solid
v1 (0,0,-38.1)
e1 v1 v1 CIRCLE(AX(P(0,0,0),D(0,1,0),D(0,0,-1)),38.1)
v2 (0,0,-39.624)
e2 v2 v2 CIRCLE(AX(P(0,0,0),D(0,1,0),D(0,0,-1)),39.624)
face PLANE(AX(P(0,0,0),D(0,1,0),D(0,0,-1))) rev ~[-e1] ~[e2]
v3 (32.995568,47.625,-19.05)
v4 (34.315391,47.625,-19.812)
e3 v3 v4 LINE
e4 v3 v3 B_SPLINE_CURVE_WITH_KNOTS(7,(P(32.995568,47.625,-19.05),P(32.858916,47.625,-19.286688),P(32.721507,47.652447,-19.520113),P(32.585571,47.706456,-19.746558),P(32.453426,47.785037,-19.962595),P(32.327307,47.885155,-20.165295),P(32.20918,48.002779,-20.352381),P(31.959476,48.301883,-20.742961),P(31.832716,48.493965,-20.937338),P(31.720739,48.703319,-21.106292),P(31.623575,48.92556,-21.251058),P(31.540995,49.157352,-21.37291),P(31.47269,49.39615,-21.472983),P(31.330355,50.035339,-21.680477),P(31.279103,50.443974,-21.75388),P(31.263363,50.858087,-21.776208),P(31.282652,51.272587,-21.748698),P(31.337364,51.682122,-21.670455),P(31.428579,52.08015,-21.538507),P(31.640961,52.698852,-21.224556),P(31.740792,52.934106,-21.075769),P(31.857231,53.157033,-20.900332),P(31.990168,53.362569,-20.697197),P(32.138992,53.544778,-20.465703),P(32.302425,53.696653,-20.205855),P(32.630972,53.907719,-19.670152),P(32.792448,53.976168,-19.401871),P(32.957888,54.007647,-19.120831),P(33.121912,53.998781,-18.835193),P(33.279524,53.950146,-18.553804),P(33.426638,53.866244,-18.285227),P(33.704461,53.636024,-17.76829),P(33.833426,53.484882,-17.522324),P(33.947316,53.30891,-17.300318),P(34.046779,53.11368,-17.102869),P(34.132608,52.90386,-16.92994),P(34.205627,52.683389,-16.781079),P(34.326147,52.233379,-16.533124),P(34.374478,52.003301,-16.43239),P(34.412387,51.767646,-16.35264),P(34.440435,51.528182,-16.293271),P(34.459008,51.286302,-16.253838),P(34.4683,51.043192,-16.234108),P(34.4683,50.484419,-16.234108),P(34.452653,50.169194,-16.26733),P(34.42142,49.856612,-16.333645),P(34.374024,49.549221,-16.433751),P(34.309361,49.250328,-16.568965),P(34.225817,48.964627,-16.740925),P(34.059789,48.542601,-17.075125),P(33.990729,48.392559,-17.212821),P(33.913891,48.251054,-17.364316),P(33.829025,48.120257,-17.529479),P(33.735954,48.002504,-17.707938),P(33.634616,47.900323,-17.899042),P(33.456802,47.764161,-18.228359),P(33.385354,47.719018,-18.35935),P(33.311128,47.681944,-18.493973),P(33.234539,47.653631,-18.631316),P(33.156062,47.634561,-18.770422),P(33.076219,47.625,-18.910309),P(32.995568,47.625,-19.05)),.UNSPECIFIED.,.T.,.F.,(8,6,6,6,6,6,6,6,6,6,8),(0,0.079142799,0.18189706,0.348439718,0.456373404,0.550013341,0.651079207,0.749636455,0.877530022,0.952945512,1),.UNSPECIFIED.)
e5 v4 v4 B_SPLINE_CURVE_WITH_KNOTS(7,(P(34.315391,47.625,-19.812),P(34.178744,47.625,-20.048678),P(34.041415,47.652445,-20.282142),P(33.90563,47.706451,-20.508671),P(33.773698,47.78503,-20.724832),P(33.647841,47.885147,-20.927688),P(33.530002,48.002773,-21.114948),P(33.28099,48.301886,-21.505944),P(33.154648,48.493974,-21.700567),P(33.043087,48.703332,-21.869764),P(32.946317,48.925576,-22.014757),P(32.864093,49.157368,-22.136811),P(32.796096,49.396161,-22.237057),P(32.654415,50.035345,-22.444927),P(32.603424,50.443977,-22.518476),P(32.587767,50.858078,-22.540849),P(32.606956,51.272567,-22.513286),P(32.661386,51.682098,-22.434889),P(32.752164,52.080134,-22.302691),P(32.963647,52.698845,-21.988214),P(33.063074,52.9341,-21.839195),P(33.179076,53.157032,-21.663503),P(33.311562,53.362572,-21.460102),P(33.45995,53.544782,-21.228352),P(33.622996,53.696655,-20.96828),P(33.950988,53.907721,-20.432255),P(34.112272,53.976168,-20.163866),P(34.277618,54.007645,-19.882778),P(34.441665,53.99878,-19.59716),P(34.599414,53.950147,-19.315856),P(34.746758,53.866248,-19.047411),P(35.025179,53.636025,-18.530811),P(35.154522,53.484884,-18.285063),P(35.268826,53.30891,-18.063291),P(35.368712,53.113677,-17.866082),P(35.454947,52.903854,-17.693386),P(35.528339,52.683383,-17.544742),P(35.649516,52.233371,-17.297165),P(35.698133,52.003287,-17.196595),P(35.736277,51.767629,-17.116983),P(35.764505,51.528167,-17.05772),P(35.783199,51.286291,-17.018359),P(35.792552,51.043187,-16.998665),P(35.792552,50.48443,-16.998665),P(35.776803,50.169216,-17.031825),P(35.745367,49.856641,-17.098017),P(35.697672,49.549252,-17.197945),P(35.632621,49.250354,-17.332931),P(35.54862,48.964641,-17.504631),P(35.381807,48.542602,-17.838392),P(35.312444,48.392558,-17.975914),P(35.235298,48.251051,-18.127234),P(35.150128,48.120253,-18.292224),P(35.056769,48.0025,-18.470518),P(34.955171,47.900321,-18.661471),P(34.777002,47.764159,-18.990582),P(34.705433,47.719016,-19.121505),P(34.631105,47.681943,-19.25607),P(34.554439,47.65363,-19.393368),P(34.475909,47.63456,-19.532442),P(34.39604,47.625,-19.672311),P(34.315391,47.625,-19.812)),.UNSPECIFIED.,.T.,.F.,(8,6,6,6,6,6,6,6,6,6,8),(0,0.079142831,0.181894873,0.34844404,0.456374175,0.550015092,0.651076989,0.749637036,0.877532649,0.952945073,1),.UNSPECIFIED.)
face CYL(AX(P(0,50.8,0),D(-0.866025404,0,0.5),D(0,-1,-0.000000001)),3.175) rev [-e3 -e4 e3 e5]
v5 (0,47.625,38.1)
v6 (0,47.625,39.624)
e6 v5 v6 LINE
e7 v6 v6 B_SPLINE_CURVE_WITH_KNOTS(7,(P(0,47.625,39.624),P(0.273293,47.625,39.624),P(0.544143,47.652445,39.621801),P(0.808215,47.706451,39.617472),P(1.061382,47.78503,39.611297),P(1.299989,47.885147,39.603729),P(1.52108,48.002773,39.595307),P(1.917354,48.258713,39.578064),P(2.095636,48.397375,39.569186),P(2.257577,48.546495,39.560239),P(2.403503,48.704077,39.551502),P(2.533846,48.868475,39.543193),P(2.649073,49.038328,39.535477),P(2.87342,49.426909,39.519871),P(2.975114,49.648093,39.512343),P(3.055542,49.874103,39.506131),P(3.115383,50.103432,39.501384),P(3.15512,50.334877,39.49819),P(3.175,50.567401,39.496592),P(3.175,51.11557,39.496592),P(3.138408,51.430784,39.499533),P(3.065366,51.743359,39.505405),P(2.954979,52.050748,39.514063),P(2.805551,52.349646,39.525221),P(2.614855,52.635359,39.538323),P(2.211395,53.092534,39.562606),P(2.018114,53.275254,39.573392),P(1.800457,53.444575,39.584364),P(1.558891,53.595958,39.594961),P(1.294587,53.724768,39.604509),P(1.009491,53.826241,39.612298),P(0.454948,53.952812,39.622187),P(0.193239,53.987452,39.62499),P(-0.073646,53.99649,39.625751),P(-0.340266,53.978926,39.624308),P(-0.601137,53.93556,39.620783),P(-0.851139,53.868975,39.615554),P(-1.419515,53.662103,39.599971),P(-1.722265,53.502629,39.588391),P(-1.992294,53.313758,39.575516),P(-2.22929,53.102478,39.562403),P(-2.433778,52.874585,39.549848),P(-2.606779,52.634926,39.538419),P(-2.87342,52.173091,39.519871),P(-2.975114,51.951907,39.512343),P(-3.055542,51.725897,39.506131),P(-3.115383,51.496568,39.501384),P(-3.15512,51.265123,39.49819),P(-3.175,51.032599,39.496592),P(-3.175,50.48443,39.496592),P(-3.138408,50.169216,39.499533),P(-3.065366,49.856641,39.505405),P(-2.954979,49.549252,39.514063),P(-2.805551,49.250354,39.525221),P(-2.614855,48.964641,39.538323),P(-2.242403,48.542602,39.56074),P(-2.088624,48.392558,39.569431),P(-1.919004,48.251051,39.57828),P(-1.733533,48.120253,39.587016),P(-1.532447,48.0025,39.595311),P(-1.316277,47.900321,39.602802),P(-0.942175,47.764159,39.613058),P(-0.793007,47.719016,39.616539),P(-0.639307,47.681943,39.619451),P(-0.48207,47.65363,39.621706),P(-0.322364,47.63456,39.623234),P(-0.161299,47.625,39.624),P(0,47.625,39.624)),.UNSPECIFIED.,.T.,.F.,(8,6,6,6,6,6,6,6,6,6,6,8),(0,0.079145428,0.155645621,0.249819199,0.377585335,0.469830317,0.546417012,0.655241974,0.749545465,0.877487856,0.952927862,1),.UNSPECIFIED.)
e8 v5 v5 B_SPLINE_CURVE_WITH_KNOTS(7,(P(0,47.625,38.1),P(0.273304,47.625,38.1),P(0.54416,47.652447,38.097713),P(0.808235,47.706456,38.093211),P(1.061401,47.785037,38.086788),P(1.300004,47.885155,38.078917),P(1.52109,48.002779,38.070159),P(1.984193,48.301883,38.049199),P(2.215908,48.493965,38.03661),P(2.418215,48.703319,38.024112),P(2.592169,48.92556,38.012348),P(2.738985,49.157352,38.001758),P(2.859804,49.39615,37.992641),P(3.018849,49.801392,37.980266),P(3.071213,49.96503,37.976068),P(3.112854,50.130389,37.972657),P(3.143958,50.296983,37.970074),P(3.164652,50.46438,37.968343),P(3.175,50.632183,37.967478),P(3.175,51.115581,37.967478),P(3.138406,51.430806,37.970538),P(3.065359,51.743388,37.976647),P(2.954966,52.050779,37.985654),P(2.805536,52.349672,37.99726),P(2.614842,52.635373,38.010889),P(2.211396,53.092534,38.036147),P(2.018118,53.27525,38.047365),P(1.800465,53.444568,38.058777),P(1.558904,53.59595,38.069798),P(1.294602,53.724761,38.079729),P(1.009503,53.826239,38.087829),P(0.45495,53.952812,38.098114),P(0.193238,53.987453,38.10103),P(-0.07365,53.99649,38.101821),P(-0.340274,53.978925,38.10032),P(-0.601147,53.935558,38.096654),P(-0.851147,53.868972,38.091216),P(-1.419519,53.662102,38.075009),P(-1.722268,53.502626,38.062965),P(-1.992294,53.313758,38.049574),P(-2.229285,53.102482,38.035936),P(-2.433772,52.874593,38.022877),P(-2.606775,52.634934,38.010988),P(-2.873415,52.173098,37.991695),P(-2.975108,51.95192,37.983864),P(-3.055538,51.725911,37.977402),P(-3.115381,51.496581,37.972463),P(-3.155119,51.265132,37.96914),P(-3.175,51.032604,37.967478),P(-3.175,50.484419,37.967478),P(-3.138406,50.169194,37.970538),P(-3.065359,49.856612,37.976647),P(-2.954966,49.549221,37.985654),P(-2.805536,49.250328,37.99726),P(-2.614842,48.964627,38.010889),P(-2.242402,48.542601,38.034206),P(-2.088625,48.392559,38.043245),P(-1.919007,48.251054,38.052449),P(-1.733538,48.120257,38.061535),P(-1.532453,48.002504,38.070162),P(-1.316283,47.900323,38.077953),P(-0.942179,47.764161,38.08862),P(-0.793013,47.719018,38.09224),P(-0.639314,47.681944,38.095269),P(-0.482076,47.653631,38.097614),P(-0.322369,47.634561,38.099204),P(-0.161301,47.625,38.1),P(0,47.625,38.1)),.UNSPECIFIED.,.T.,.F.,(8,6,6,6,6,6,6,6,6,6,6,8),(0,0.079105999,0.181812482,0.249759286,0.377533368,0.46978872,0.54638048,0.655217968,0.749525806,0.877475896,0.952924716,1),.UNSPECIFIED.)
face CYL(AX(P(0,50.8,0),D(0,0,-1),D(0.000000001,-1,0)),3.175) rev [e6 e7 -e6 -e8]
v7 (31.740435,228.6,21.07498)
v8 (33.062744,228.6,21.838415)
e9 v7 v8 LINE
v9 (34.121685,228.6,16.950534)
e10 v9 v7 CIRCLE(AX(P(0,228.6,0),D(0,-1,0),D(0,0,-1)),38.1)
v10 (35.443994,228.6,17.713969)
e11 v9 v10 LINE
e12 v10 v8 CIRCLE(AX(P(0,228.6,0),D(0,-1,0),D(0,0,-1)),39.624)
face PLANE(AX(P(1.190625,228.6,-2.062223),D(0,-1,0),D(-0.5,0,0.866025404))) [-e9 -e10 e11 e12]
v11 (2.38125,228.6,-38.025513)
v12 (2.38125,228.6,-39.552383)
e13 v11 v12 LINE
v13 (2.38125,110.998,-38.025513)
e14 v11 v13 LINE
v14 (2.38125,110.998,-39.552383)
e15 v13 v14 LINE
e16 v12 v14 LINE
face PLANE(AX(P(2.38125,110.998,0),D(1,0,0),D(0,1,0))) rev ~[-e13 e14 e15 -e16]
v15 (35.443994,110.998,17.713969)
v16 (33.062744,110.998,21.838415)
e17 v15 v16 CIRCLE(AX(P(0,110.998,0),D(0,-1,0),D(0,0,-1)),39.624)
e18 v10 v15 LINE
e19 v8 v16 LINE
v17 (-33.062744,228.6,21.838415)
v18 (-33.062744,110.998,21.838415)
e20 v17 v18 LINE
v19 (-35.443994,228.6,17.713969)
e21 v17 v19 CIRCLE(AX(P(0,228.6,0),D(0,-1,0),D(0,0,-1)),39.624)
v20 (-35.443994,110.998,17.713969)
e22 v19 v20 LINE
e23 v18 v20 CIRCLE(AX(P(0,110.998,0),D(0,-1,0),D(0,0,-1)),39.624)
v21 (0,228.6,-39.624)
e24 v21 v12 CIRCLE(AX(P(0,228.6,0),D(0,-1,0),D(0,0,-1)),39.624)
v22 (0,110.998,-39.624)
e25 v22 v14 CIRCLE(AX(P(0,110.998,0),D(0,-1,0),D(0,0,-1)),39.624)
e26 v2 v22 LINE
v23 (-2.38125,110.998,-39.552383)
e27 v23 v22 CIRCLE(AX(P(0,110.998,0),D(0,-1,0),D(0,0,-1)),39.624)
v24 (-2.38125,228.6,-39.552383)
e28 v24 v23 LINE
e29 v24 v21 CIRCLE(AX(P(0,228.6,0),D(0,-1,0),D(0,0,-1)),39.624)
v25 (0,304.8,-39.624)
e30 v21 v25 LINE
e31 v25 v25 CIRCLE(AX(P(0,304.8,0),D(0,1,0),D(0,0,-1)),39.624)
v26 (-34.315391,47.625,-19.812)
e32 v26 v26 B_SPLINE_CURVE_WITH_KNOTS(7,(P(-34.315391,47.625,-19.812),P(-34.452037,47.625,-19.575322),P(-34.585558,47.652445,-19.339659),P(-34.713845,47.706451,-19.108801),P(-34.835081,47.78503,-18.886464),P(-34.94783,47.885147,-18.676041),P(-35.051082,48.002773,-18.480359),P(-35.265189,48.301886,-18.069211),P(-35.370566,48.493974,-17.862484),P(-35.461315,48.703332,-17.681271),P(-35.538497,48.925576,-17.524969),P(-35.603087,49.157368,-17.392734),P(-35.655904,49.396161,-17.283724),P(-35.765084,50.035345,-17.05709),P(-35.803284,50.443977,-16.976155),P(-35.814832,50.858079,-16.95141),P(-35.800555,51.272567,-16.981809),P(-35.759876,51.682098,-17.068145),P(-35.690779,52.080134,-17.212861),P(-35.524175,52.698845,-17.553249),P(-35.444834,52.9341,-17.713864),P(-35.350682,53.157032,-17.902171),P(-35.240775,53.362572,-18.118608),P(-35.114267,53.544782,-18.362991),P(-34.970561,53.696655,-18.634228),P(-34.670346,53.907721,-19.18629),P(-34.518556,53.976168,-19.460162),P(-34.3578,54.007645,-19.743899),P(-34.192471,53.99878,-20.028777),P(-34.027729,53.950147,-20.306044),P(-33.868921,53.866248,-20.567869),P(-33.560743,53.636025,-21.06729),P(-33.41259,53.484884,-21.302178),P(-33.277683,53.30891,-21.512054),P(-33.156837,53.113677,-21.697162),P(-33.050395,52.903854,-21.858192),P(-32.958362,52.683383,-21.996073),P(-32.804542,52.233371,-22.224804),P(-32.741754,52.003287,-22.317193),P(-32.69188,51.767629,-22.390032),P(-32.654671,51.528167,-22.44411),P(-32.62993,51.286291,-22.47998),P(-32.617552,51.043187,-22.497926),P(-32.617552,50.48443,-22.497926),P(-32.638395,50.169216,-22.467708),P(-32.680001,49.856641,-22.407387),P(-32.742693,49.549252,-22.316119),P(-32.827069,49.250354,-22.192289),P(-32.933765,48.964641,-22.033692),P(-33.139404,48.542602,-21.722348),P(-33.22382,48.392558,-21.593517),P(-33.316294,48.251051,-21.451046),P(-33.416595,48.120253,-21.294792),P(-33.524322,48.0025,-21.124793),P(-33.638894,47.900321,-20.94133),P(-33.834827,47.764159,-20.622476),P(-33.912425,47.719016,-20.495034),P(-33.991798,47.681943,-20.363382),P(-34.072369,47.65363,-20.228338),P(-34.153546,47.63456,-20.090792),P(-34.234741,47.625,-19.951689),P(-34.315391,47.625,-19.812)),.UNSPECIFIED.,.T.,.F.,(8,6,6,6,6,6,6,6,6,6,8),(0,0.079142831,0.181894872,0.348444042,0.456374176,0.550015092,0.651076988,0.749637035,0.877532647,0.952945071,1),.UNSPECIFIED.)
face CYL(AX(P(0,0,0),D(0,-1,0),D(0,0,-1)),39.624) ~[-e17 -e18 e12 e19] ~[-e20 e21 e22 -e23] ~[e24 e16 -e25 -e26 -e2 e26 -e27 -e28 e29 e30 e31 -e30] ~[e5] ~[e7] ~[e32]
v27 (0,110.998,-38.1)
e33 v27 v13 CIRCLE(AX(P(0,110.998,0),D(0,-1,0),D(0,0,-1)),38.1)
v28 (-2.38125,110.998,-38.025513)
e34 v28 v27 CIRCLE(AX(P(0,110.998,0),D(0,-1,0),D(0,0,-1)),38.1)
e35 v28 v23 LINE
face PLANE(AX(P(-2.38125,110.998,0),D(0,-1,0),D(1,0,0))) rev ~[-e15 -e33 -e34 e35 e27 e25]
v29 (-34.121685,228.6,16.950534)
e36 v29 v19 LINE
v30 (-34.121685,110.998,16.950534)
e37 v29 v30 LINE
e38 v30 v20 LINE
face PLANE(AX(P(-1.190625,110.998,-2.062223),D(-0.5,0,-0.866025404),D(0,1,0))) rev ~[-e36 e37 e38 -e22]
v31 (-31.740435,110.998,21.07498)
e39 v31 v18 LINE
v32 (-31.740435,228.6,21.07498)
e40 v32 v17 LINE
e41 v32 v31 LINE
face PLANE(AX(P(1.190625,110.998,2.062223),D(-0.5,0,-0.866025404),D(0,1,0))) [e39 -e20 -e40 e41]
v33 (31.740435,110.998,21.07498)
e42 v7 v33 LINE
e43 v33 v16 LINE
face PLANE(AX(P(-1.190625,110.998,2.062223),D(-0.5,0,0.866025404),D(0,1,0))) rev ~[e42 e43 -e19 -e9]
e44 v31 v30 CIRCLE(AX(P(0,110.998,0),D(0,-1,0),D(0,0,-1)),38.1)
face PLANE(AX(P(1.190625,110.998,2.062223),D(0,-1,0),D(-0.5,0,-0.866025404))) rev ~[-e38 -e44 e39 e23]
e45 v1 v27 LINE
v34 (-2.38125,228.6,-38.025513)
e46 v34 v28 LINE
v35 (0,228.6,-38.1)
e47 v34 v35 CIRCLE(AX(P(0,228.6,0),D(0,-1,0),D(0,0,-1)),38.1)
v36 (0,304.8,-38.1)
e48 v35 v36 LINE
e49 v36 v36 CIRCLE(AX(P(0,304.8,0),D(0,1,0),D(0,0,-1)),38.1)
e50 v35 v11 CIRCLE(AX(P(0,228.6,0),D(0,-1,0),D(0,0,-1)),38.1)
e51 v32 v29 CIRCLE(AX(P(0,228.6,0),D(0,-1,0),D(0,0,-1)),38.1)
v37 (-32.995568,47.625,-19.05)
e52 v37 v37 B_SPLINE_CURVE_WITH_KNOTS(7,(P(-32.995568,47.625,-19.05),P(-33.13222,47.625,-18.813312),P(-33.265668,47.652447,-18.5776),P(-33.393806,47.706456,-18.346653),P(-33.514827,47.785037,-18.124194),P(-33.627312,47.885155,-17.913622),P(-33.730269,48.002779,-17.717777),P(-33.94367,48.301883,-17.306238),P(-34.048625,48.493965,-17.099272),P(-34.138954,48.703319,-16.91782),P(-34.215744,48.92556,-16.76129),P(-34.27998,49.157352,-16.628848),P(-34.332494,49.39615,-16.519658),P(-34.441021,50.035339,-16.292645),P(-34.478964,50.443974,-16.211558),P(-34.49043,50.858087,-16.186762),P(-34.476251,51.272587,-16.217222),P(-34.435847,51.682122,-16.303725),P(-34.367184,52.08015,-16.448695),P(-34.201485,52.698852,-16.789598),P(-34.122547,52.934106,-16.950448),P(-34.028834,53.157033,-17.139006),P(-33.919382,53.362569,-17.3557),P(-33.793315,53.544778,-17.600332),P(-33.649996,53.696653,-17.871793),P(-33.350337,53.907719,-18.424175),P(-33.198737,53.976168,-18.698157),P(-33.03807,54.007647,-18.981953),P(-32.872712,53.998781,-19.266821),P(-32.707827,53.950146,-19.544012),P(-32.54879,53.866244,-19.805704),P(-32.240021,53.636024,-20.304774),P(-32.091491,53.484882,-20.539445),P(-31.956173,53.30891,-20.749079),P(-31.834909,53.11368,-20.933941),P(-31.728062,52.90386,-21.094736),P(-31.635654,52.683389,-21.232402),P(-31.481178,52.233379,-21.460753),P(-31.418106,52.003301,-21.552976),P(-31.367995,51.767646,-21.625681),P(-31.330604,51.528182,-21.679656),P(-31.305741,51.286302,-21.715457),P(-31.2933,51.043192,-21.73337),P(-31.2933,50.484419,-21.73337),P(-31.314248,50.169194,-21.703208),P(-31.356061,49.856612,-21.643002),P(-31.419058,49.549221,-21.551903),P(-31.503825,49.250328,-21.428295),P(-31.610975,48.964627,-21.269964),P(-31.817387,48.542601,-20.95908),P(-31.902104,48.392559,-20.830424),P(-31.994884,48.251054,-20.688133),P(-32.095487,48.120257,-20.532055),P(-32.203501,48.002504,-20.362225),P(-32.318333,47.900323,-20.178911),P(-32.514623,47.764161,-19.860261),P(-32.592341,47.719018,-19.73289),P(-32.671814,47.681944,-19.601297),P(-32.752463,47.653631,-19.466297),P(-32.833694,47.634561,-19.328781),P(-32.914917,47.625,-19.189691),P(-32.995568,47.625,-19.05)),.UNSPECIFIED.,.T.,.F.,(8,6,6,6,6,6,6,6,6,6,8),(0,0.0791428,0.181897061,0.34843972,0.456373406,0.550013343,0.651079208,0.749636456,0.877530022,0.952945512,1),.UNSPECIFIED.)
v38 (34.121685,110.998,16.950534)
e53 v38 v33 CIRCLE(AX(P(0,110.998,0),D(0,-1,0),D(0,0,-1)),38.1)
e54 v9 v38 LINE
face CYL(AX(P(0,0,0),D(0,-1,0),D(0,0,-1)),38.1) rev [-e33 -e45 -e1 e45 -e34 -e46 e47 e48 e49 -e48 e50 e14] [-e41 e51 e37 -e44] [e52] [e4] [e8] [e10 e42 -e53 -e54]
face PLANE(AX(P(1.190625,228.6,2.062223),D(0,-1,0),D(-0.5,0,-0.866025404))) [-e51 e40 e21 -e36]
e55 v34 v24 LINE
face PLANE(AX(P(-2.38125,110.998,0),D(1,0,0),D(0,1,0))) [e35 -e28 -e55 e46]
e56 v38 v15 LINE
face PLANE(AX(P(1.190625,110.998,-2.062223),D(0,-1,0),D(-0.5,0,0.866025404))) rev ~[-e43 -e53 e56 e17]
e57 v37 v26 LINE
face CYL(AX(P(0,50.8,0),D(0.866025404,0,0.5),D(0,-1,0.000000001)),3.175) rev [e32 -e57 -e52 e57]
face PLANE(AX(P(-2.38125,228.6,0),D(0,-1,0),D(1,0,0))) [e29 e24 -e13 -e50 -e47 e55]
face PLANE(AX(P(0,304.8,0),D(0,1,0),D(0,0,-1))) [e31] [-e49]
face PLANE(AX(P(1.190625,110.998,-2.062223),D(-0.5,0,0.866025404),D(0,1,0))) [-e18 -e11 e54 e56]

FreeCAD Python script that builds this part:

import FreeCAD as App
import Part
import Sketcher
Q = App.Units.Quantity


def add_polygon(sketch, points):
    """Adds a closed chain of lines whose ends are joined by coincident constraints."""
    first, n = sketch.GeometryCount, len(points)
    for a, b in zip(points, points[1:] + points[:1]):
        sketch.addGeometry(Part.LineSegment(App.Vector(*a, 0), App.Vector(*b, 0)), False)
    for i in range(n):
        sketch.addConstraint(Sketcher.Constraint("Coincident", first + i, 2, first + (i + 1) % n, 1))

doc = App.newDocument("Part")
body = doc.addObject("PartDesign::Body", "Body")

# Sketch on XZ plane
sketch1 = doc.addObject("Sketcher::SketchObject", "Sketch")
body.addObject(sketch1)
sketch1.AttachmentSupport = (doc.XZ_Plane, [""])
sketch1.MapMode = "FlatFace"
sketch1.addGeometry([
    Part.Circle(App.Vector(0, 0, 0), App.Vector(0, 0, 1), 40),
    Part.Circle(App.Vector(0, 0, 0), App.Vector(0, 0, 1), 38),
], False)
sketch1.addConstraint([
    Sketcher.Constraint("Coincident", 0, 3, -1, 1),
    Sketcher.Constraint("Coincident", 1, 3, -1, 1),
    Sketcher.Constraint("Diameter", 1, Q("3 in")),
    Sketcher.Constraint("Diameter", 0, Q("3.12 in")),
])
pad1 = doc.addObject("PartDesign::Pad", "Pad")
body.addObject(pad1)
pad1.Profile = sketch1
pad1.Length = Q("12 in")
pad1.Reversed = True

# Sketch on XY plane
sketch2 = doc.addObject("Sketcher::SketchObject", "Sketch001")
body.addObject(sketch2)
sketch2.AttachmentSupport = (doc.XY_Plane, [""])
sketch2.MapMode = "FlatFace"
add_polygon(sketch2, [(-2.4, 228.6), (-2.4, 111), (2.4, 111), (2.4, 228.6)])  # lines 0-3
sketch2.addConstraint([
    Sketcher.Constraint("Vertical", 0),
    Sketcher.Constraint("Horizontal", 1),
    Sketcher.Constraint("Vertical", 2),
    Sketcher.Constraint("Horizontal", 3),
    Sketcher.Constraint("DistanceY", -1, 1, 2, 2, Q("9 in")),
    Sketcher.Constraint("DistanceY", 0, 2, 0, 1, Q("4.63 in")),
    Sketcher.Constraint("DistanceX", 1, 1, 1, 2, Q("0.1875 in")),
    Sketcher.Constraint("DistanceX", 0, 2, -1, 1, Q("0.09375 in")),
])
pocket1 = doc.addObject("PartDesign::Pocket", "Pocket")
body.addObject(pocket1)
pocket1.Profile = sketch2
pocket1.Type = "ThroughAll"
doc.recompute()

polarpattern = doc.addObject("PartDesign::PolarPattern", "PolarPattern")
body.addObject(polarpattern)
polarpattern.Originals = [pocket1]
polarpattern.Axis = (doc.Y_Axis, [""])
polarpattern.Angle = 360
polarpattern.Occurrences = 3
body.Tip = polarpattern

# Sketch on XY plane
sketch3 = doc.addObject("Sketcher::SketchObject", "Sketch002")
body.addObject(sketch3)
sketch3.AttachmentSupport = (doc.XY_Plane, [""])
sketch3.MapMode = "FlatFace"
sketch3.addGeometry(Part.Circle(App.Vector(0, 50.8, 0), App.Vector(0, 0, 1), 3.2), False)
sketch3.addConstraint([
    Sketcher.Constraint("PointOnObject", 0, 3, -2),
    Sketcher.Constraint("Diameter", 0, Q("0.25 in")),
    Sketcher.Constraint("DistanceY", -1, 1, 0, 3, Q("2 in")),
])
pocket2 = doc.addObject("PartDesign::Pocket", "Pocket001")
body.addObject(pocket2)
pocket2.Profile = sketch3
pocket2.Type = "ThroughAll"
pocket2.Reversed = True
doc.recompute()

polarpattern2 = doc.addObject("PartDesign::PolarPattern", "PolarPattern001")
body.addObject(polarpattern2)
polarpattern2.Originals = [pocket2]
polarpattern2.Axis = (doc.Y_Axis, [""])
polarpattern2.Angle = 360
polarpattern2.Occurrences = 3
body.Tip = polarpattern2

doc.recompute()
